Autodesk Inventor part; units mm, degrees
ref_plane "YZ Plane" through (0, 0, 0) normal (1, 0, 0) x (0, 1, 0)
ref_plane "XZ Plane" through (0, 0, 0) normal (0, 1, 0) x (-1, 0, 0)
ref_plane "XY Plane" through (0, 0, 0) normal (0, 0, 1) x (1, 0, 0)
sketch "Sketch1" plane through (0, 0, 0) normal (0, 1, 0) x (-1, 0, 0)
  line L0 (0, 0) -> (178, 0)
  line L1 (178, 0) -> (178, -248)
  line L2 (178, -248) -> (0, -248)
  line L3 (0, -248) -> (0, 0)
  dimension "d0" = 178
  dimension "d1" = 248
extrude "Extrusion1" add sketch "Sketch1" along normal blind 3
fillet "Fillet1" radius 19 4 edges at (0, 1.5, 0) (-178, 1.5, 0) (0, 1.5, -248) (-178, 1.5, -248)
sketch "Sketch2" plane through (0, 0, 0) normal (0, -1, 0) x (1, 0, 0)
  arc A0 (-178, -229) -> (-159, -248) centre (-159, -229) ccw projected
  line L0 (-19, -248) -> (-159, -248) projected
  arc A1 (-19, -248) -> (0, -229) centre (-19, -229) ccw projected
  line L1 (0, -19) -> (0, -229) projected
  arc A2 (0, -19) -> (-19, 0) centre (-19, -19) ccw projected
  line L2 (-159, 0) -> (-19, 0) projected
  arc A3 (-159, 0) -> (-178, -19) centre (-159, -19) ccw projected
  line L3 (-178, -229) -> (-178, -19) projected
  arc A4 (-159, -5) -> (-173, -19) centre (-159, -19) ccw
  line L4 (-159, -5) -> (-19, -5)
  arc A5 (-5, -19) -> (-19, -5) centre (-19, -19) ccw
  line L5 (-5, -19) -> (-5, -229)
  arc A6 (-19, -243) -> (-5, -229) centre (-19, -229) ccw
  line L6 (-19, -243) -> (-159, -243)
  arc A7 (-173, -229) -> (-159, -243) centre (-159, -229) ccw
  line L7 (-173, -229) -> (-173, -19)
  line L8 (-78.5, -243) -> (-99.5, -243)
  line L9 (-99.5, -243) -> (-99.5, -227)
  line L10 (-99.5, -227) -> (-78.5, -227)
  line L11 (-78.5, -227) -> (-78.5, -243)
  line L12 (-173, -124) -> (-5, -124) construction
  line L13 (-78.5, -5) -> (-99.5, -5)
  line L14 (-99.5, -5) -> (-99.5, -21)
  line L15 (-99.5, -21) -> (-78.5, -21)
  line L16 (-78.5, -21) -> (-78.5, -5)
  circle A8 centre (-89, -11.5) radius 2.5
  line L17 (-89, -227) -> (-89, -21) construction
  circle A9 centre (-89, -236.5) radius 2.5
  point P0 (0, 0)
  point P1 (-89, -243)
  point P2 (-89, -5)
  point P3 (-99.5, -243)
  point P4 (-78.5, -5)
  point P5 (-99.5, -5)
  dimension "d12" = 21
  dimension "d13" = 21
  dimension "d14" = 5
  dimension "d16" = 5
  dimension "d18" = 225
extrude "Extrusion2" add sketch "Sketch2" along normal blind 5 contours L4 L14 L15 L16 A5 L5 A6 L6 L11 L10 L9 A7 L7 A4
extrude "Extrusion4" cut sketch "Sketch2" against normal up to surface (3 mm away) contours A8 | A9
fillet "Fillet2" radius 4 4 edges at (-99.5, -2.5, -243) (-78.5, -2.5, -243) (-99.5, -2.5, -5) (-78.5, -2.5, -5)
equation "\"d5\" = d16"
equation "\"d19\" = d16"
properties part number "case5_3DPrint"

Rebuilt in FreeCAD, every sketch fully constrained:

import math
import FreeCAD as App
import Part
import Sketcher
from FreeCAD import Vector


def edges_at(feature, points):
    """Names of the edges that pass closest to the given points."""
    edges = feature.Shape.Edges
    near = lambda p: min(range(len(edges)), key=lambda i: edges[i].distToShape(Part.Vertex(*p))[0])
    return sorted({f"Edge{near(p) + 1}" for p in points})

doc = App.newDocument("Part")
body = doc.addObject("PartDesign::Body", "Body")

sketch1 = body.newObject("Sketcher::SketchObject", "Sketch")
sketch1.AttachmentSupport = (doc.getObject("XZ_Plane"), [""])
sketch1.MapMode = "FlatFace"
sketch1.addGeometry(Part.LineSegment(Vector(-178, 0, 0), Vector(0, 0, 0)), False)
sketch1.addGeometry(Part.LineSegment(Vector(0, 0, 0), Vector(0, -248, 0)), False)
sketch1.addGeometry(Part.LineSegment(Vector(0, -248, 0), Vector(-178, -248, 0)), False)
sketch1.addGeometry(Part.LineSegment(Vector(-178, -248, 0), Vector(-178, 0, 0)), False)
sketch1.addConstraint(Sketcher.Constraint("Coincident", 0, 2, 1, 1))
sketch1.addConstraint(Sketcher.Constraint("Coincident", 1, 2, 2, 1))
sketch1.addConstraint(Sketcher.Constraint("Coincident", 2, 2, 3, 1))
sketch1.addConstraint(Sketcher.Constraint("Coincident", 3, 2, 0, 1))
sketch1.addConstraint(Sketcher.Constraint("Horizontal", 0))
sketch1.addConstraint(Sketcher.Constraint("Vertical", 1))
sketch1.addConstraint(Sketcher.Constraint("Horizontal", 2))
sketch1.addConstraint(Sketcher.Constraint("Vertical", 3))
sketch1.addConstraint(Sketcher.Constraint("Coincident", 0, 2, -1, 1))
sketch1.addConstraint(Sketcher.Constraint("DistanceX", 0, 1, 0, 2, 178.0))
sketch1.addConstraint(Sketcher.Constraint("DistanceY", 1, 2, 1, 1, 248.0))
pad1 = body.newObject("PartDesign::Pad", "Pad")
pad1.Profile = sketch1
pad1.Length = 3
pad1.Reversed = True
doc.recompute()

fillet = body.newObject("PartDesign::Fillet", "Fillet")
fillet.Base = (pad1, edges_at(pad1, [
    (0, 1.5, 0),
    (-178, 1.5, 0),
    (0, 1.5, -248),
    (-178, 1.5, -248),
]))
fillet.Radius = 19

sketch2 = body.newObject("Sketcher::SketchObject", "Sketch001")
sketch2.AttachmentSupport = (doc.getObject("XZ_Plane"), [""])
sketch2.MapMode = "FlatFace"
sketch2.addGeometry(Part.LineSegment(Vector(-100, -5, 0), Vector(-159, -5, 0)), False)
sketch2.addGeometry(Part.ArcOfCircle(Part.Circle(Vector(-159, -19, 0), Vector(0, 0, 1), 14), math.radians(90), math.radians(180)), False)
sketch2.addGeometry(Part.LineSegment(Vector(-173, -19, 0), Vector(-173, -229, 0)), False)
sketch2.addGeometry(Part.ArcOfCircle(Part.Circle(Vector(-159, -229, 0), Vector(0, 0, 1), 14), math.radians(180), math.radians(270)), False)
sketch2.addGeometry(Part.LineSegment(Vector(-159, -243, 0), Vector(-100, -243, 0)), False)
sketch2.addGeometry(Part.LineSegment(Vector(-100, -243, 0), Vector(-100, -227, 0)), False)
sketch2.addGeometry(Part.LineSegment(Vector(-100, -227, 0), Vector(-78, -227, 0)), False)
sketch2.addGeometry(Part.LineSegment(Vector(-78, -227, 0), Vector(-78, -243, 0)), False)
sketch2.addGeometry(Part.LineSegment(Vector(-78, -243, 0), Vector(-19, -243, 0)), False)
sketch2.addGeometry(Part.ArcOfCircle(Part.Circle(Vector(-19, -229, 0), Vector(0, 0, 1), 14), math.radians(-90), math.radians(0)), False)
sketch2.addGeometry(Part.LineSegment(Vector(-5, -229, 0), Vector(-5, -19, 0)), False)
sketch2.addGeometry(Part.ArcOfCircle(Part.Circle(Vector(-19, -19, 0), Vector(0, 0, 1), 14), math.radians(0), math.radians(90)), False)
sketch2.addGeometry(Part.LineSegment(Vector(-19, -5, 0), Vector(-78, -5, 0)), False)
sketch2.addGeometry(Part.LineSegment(Vector(-78, -5, 0), Vector(-78, -21, 0)), False)
sketch2.addGeometry(Part.LineSegment(Vector(-78, -21, 0), Vector(-100, -21, 0)), False)
sketch2.addGeometry(Part.LineSegment(Vector(-100, -21, 0), Vector(-100, -5, 0)), False)
sketch2.addConstraint(Sketcher.Constraint("Tangent", 0, 2, 1, 1))
sketch2.addConstraint(Sketcher.Constraint("Tangent", 1, 2, 2, 1))
sketch2.addConstraint(Sketcher.Constraint("Tangent", 2, 2, 3, 1))
sketch2.addConstraint(Sketcher.Constraint("Tangent", 3, 2, 4, 1))
sketch2.addConstraint(Sketcher.Constraint("Coincident", 4, 2, 5, 1))
sketch2.addConstraint(Sketcher.Constraint("Coincident", 5, 2, 6, 1))
sketch2.addConstraint(Sketcher.Constraint("Coincident", 6, 2, 7, 1))
sketch2.addConstraint(Sketcher.Constraint("Coincident", 7, 2, 8, 1))
sketch2.addConstraint(Sketcher.Constraint("Tangent", 8, 2, 9, 1))
sketch2.addConstraint(Sketcher.Constraint("Tangent", 9, 2, 10, 1))
sketch2.addConstraint(Sketcher.Constraint("Tangent", 10, 2, 11, 1))
sketch2.addConstraint(Sketcher.Constraint("Tangent", 11, 2, 12, 1))
sketch2.addConstraint(Sketcher.Constraint("Coincident", 12, 2, 13, 1))
sketch2.addConstraint(Sketcher.Constraint("Coincident", 13, 2, 14, 1))
sketch2.addConstraint(Sketcher.Constraint("Coincident", 14, 2, 15, 1))
sketch2.addConstraint(Sketcher.Constraint("Coincident", 15, 2, 0, 1))
sketch2.addConstraint(Sketcher.Constraint("Horizontal", 0))
sketch2.addConstraint(Sketcher.Constraint("Vertical", 2))
sketch2.addConstraint(Sketcher.Constraint("Horizontal", 4))
sketch2.addConstraint(Sketcher.Constraint("Vertical", 5))
sketch2.addConstraint(Sketcher.Constraint("Horizontal", 6))
sketch2.addConstraint(Sketcher.Constraint("Vertical", 7))
sketch2.addConstraint(Sketcher.Constraint("Horizontal", 8))
sketch2.addConstraint(Sketcher.Constraint("Vertical", 10))
sketch2.addConstraint(Sketcher.Constraint("Horizontal", 12))
sketch2.addConstraint(Sketcher.Constraint("Vertical", 13))
sketch2.addConstraint(Sketcher.Constraint("Horizontal", 14))
sketch2.addConstraint(Sketcher.Constraint("Vertical", 15))
sketch2.addConstraint(Sketcher.Constraint("Equal", 1, 3))
sketch2.addConstraint(Sketcher.Constraint("Equal", 3, 9))
sketch2.addConstraint(Sketcher.Constraint("Equal", 9, 11))
sketch2.addConstraint(Sketcher.Constraint("Horizontal", 3, 3, 9, 3))
sketch2.addConstraint(Sketcher.Constraint("Horizontal", 1, 3, 11, 3))
sketch2.addConstraint(Sketcher.Constraint("Vertical", 7, 2, 12, 2))
sketch2.addConstraint(Sketcher.Constraint("Vertical", 5, 2, 14, 2))
sketch2.addConstraint(Sketcher.Constraint("Equal", 4, 8))
sketch2.addConstraint(Sketcher.Constraint("Equal", 7, 13))
sketch2.addConstraint(Sketcher.Constraint("DistanceX", 6, 1, 6, 2, 21.0))
sketch2.addConstraint(Sketcher.Constraint("DistanceY", 0, 2, -1, 1, 5.0))
sketch2.addConstraint(Sketcher.Constraint("DistanceX", 9, 2, -1, 1, 5.0))
sketch2.addConstraint(Sketcher.Constraint("DistanceY", 13, 2, -1, 1, 21.0))
sketch2.addConstraint(Sketcher.Constraint("Radius", 1, 14.0))
sketch2.addConstraint(Sketcher.Constraint("DistanceY", 2, 2, 2, 1, 210.0))
sketch2.addConstraint(Sketcher.Constraint("DistanceX", 0, 2, 0, 1, 59.5))
pad2 = body.newObject("PartDesign::Pad", "Pad001")
pad2.Profile = sketch2
pad2.Length = 5

sketch3 = body.newObject("Sketcher::SketchObject", "Sketch002")
sketch3.AttachmentSupport = (doc.getObject("XZ_Plane"), [""])
sketch3.MapMode = "FlatFace"
sketch3.addGeometry(Part.Circle(Vector(-89, -11.5, 0), Vector(0, 0, 1), 2.5), False)
sketch3.addGeometry(Part.Circle(Vector(-89, -236.5, 0), Vector(0, 0, 1), 2.5), False)
sketch3.addConstraint(Sketcher.Constraint("Equal", 0, 1))
sketch3.addConstraint(Sketcher.Constraint("Vertical", 0, 3, 1, 3))
sketch3.addConstraint(Sketcher.Constraint("Diameter", 0, 5.0))
sketch3.addConstraint(Sketcher.Constraint("DistanceY", 1, 3, 0, 3, 225.0))
sketch3.addConstraint(Sketcher.Constraint("DistanceX", 0, 3, -1, 1, 89.0))
sketch3.addConstraint(Sketcher.Constraint("DistanceY", 0, 3, -1, 1, 11.5))
pocket1 = body.newObject("PartDesign::Pocket", "Pocket")
pocket1.Profile = sketch3
pocket1.Length = 3
doc.recompute()

fillet2 = body.newObject("PartDesign::Fillet", "Fillet001")
fillet2.Base = (pocket1, edges_at(pocket1, [
    (-99.5, -2.5, -243),
    (-78.5, -2.5, -243),
    (-99.5, -2.5, -5),
    (-78.5, -2.5, -5),
]))
fillet2.Radius = 4

doc.recompute()
